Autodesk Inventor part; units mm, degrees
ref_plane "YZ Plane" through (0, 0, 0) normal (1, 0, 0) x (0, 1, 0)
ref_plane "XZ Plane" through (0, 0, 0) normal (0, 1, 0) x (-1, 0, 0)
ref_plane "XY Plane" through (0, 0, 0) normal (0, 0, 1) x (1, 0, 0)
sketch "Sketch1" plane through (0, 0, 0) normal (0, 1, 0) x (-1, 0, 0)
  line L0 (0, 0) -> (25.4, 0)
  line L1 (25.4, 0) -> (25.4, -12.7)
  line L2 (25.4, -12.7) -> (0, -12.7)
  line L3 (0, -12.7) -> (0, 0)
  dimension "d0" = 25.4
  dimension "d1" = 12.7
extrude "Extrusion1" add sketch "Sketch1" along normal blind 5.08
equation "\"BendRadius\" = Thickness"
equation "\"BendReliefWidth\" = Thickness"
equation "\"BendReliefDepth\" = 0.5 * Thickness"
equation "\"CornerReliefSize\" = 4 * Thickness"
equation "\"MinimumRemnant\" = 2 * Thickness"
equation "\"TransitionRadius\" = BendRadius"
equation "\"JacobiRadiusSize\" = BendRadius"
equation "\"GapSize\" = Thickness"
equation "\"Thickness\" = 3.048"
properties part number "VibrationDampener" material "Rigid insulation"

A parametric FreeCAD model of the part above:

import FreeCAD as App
import Part
import Sketcher
from FreeCAD import Vector
Q = App.Units.Quantity


def add_polygon(sketch, points):
    """Adds a closed chain of lines whose ends are joined by coincident constraints."""
    first, n = sketch.GeometryCount, len(points)
    for a, b in zip(points, points[1:] + points[:1]):
        sketch.addGeometry(Part.LineSegment(App.Vector(*a, 0), App.Vector(*b, 0)), False)
    for i in range(n):
        sketch.addConstraint(Sketcher.Constraint("Coincident", first + i, 2, first + (i + 1) % n, 1))

doc = App.newDocument("Part")
body = doc.addObject("PartDesign::Body", "Body")

# Sketch on XZ plane
sketch1 = body.newObject("Sketcher::SketchObject", "Sketch")
sketch1.AttachmentSupport = (doc.getObject("XZ_Plane"), [""])
sketch1.MapMode = "FlatFace"
add_polygon(sketch1, [(-25.4, 0), (0, 0), (0, -12.7), (-25.4, -12.7)])  # lines 0-3
sketch1.addConstraint([
    Sketcher.Constraint("Horizontal", 0),
    Sketcher.Constraint("Vertical", 1),
    Sketcher.Constraint("Horizontal", 2),
    Sketcher.Constraint("Vertical", 3),
    Sketcher.Constraint("Coincident", 0, 2, -1, 1),
    Sketcher.Constraint("DistanceX", 0, 1, 0, 2, Q("1 in")),
    Sketcher.Constraint("DistanceY", 1, 2, 1, 1, Q("0.5 in")),
])
pad1 = body.newObject("PartDesign::Pad", "Pad")
pad1.Profile = sketch1
pad1.Length = Q("0.2 in")
pad1.Reversed = True

doc.recompute()
